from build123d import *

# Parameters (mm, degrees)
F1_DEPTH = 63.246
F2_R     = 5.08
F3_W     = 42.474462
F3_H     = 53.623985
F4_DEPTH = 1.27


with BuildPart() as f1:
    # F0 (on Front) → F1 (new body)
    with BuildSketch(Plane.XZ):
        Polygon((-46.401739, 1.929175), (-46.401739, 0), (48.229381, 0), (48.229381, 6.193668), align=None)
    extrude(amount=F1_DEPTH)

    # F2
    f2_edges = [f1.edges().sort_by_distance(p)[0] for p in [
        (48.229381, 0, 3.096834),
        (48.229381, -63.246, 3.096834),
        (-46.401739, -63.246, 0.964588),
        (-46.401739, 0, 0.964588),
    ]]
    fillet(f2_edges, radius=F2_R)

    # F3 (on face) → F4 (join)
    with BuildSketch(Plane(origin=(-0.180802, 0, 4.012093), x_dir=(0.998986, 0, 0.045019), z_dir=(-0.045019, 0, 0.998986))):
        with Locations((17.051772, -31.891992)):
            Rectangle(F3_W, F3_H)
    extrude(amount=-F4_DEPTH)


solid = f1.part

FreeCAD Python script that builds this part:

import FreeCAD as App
import Part
import Sketcher

V = App.Vector
Q = App.Units.Quantity


def edges_at(feature, points):
    """Names of the edges that pass closest to the given points."""
    edges = feature.Shape.Edges
    near = lambda p: min(range(len(edges)), key=lambda i: edges[i].distToShape(Part.Vertex(*p))[0])
    return sorted({f"Edge{near(p) + 1}" for p in points})


def add_polygon(sketch, points):
    """Adds a closed chain of lines whose ends are joined by coincident constraints."""
    first, n = sketch.GeometryCount, len(points)
    for a, b in zip(points, points[1:] + points[:1]):
        sketch.addGeometry(Part.LineSegment(App.Vector(*a, 0), App.Vector(*b, 0)), False)
    for i in range(n):
        sketch.addConstraint(Sketcher.Constraint("Coincident", first + i, 2, first + (i + 1) % n, 1))

doc = App.newDocument("Part")
body = doc.addObject("PartDesign::Body", "Body")

# Sketch on XZ plane
sketch1 = body.newObject("Sketcher::SketchObject", "Sketch")
sketch1.AttachmentSupport = (doc.getObject("XZ_Plane"), [""])
sketch1.MapMode = "FlatFace"
add_polygon(sketch1, [(-46.401739, 1.929175), (-46.401739, 0), (48.229381, 0), (48.229381, 6.193668)])  # lines 0-3
sketch1.addConstraint([
    Sketcher.Constraint("Vertical", 0),
    Sketcher.Constraint("Horizontal", 1),
    Sketcher.Constraint("Vertical", 2),
    Sketcher.Constraint("PointOnObject", 0, 2, -1),
    Sketcher.Constraint("DistanceX", 1, 1, 1, 2, 94.63112),
    Sketcher.Constraint("Distance", 3, 94.72716),
    Sketcher.Constraint("DistanceY", 0, 2, 0, 1, 1.929175),
    Sketcher.Constraint("DistanceX", 0, 2, -1, 1, 46.401739),
])
pad1 = body.newObject("PartDesign::Pad", "Pad")
pad1.Profile = sketch1
pad1.Length = Q("2.49 in")
doc.recompute()

fillet = body.newObject("PartDesign::Fillet", "Fillet")
fillet.Base = (pad1, edges_at(pad1, [
    (48.229, 0, 3.097),
    (48.229, -63.246, 3.097),
    (-46.402, -63.246, 0.965),
    (-46.402, 0, 0.965),
]))
fillet.Radius = Q("0.2 in")

# Sketch on an angled plane
sketch2 = body.newObject("Sketcher::SketchObject", "Sketch001")
sketch2.Placement = App.Placement(V(-0.180802, 0, 4.012093), App.Rotation(V(0.998986131, 0, 0.045019006), V(0, 1.000000001, 0), V(-0.045019006, 0, 0.998986131), "ZXY"))
add_polygon(sketch2, [(-4.185459, -5.08), (-4.185459, -58.703985), (38.289003, -58.703985), (38.289003, -5.08)])  # lines 0-3
sketch2.addConstraint([
    Sketcher.Constraint("Vertical", 0),
    Sketcher.Constraint("Horizontal", 1),
    Sketcher.Constraint("Vertical", 2),
    Sketcher.Constraint("Horizontal", 3),
    Sketcher.Constraint("DistanceY", 2, 2, -1, 1, Q("0.2 in")),
    Sketcher.Constraint("DistanceX", 1, 1, 1, 2, 42.474462),
    Sketcher.Constraint("DistanceY", 0, 2, 0, 1, 53.623985),
    Sketcher.Constraint("DistanceX", 0, 2, -1, 1, 4.185459),
])
pad2 = body.newObject("PartDesign::Pad", "Pad001")
pad2.Profile = sketch2
pad2.Length = Q("0.05 in")
pad2.Reversed = True

doc.recompute()
